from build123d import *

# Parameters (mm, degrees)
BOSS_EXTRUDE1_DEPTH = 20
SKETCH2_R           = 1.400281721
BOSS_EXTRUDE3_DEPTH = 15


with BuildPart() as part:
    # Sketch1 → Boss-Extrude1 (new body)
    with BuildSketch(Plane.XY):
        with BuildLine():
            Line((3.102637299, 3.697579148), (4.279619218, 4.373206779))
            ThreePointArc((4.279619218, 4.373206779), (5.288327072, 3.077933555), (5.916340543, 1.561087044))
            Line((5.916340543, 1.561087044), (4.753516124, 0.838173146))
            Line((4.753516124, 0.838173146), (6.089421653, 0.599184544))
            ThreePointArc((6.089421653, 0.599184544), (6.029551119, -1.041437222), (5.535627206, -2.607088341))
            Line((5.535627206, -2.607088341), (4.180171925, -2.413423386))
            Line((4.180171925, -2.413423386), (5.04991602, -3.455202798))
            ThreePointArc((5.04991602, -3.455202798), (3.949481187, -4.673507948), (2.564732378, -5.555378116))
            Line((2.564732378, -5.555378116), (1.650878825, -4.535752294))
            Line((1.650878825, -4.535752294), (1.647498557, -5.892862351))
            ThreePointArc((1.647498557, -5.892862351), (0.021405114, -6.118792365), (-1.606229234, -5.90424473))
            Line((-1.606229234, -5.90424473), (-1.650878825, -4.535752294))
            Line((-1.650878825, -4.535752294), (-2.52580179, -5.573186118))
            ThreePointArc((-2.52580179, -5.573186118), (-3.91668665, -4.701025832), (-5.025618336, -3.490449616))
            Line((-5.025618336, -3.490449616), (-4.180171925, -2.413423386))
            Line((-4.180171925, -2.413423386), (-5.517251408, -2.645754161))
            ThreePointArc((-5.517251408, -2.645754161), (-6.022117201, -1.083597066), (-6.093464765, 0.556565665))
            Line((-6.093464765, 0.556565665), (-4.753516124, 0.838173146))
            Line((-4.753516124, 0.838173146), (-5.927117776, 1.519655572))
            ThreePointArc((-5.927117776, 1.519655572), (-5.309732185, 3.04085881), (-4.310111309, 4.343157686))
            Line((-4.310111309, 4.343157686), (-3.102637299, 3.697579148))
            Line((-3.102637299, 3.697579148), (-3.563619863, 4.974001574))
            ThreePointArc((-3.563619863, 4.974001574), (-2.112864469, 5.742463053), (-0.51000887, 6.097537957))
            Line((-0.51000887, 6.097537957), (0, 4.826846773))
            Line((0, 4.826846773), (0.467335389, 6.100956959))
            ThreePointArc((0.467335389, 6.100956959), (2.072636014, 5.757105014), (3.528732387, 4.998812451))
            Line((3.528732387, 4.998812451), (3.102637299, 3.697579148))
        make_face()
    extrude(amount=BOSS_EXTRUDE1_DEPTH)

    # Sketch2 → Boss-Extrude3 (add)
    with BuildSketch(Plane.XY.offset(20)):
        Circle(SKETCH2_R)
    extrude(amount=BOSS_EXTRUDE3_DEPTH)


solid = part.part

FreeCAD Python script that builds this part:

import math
import FreeCAD as App
import Part
import Sketcher

doc = App.newDocument("Part")
params = doc.addObject("Spreadsheet::Sheet", "Params")
for row, (alias, value) in enumerate([
    ("pad1_length", "20 mm"),
    ("pad2_length", "15 mm"),
], start=1):
    params.set(f"A{row}", alias)
    params.set(f"B{row}", "=" + value)
    params.setAlias(f"B{row}", alias)

body = doc.addObject("PartDesign::Body", "Body")

sketch1 = body.newObject("Sketcher::SketchObject", "Sketch")
sketch1.AttachmentSupport = (doc.getObject("XY_Plane"), [""])
sketch1.MapMode = "FlatFace"
sketch1.addGeometry([
    Part.LineSegment(App.Vector(4.279619, 4.373207, 0), App.Vector(3.102637, 3.697579, 0)),
    Part.LineSegment(App.Vector(3.102637, 3.697579, 0), App.Vector(3.528732, 4.998812, 0)),
    Part.ArcOfCircle(Part.Circle(App.Vector(0, 0, 0), App.Vector(0, 0, 1), 6.11883), math.radians(54.781191), math.radians(85.619678)),
    Part.LineSegment(App.Vector(0.467335, 6.100957, 0), App.Vector(0, 4.826847, 0)),
    Part.LineSegment(App.Vector(0, 4.826847, 0), App.Vector(-0.510009, 6.097538, 0)),
    Part.ArcOfCircle(Part.Circle(App.Vector(0, 0, 0), App.Vector(0, 0, 1), 6.11883), math.radians(94.781192), math.radians(125.619678)),
    Part.LineSegment(App.Vector(-3.56362, 4.974002, 0), App.Vector(-3.102637, 3.697579, 0)),
    Part.LineSegment(App.Vector(-3.102637, 3.697579, 0), App.Vector(-4.310111, 4.343158, 0)),
    Part.ArcOfCircle(Part.Circle(App.Vector(0, 0, 0), App.Vector(0, 0, 1), 6.11883), math.radians(134.781192), math.radians(165.619678)),
    Part.LineSegment(App.Vector(-5.927118, 1.519656, 0), App.Vector(-4.753516, 0.838173, 0)),
    Part.LineSegment(App.Vector(-4.753516, 0.838173, 0), App.Vector(-6.093465, 0.556566, 0)),
    Part.ArcOfCircle(Part.Circle(App.Vector(0, 0, 0), App.Vector(0, 0, 1), 6.11883), math.radians(174.781191), math.radians(205.619678)),
    Part.LineSegment(App.Vector(-5.517251, -2.645754, 0), App.Vector(-4.180172, -2.413423, 0)),
    Part.LineSegment(App.Vector(-4.180172, -2.413423, 0), App.Vector(-5.025618, -3.49045, 0)),
    Part.ArcOfCircle(Part.Circle(App.Vector(0, 0, 0), App.Vector(0, 0, 1), 6.11883), math.radians(-145.218809), math.radians(-114.380322)),
    Part.LineSegment(App.Vector(-2.525802, -5.573186, 0), App.Vector(-1.650879, -4.535752, 0)),
    Part.LineSegment(App.Vector(-1.650879, -4.535752, 0), App.Vector(-1.606229, -5.904245, 0)),
    Part.ArcOfCircle(Part.Circle(App.Vector(0, 0, 0), App.Vector(0, 0, 1), 6.11883), math.radians(-105.218808), math.radians(-74.380322)),
    Part.LineSegment(App.Vector(1.647499, -5.892862, 0), App.Vector(1.650879, -4.535752, 0)),
    Part.LineSegment(App.Vector(1.650879, -4.535752, 0), App.Vector(2.564732, -5.555378, 0)),
    Part.ArcOfCircle(Part.Circle(App.Vector(0, 0, 0), App.Vector(0, 0, 1), 6.11883), math.radians(-65.218809), math.radians(-34.380322)),
    Part.LineSegment(App.Vector(5.049916, -3.455203, 0), App.Vector(4.180172, -2.413423, 0)),
    Part.LineSegment(App.Vector(4.180172, -2.413423, 0), App.Vector(5.535627, -2.607088, 0)),
    Part.ArcOfCircle(Part.Circle(App.Vector(0, 0, 0), App.Vector(0, 0, 1), 6.11883), math.radians(-25.218809), math.radians(5.619678)),
    Part.LineSegment(App.Vector(6.089422, 0.599185, 0), App.Vector(4.753516, 0.838173, 0)),
    Part.LineSegment(App.Vector(4.753516, 0.838173, 0), App.Vector(5.916341, 1.561087, 0)),
    Part.ArcOfCircle(Part.Circle(App.Vector(0, 0, 0), App.Vector(0, 0, 1), 6.11883), math.radians(14.781191), math.radians(45.619678)),
], False)
sketch1.addConstraint([
    Sketcher.Constraint("Coincident", 0, 2, 1, 1),
    Sketcher.Constraint("Coincident", 1, 2, 2, 1),
    Sketcher.Constraint("Coincident", 2, 2, 3, 1),
    Sketcher.Constraint("Coincident", 3, 2, 4, 1),
    Sketcher.Constraint("Coincident", 4, 2, 5, 1),
    Sketcher.Constraint("Coincident", 5, 2, 6, 1),
    Sketcher.Constraint("Coincident", 6, 2, 7, 1),
    Sketcher.Constraint("Coincident", 7, 2, 8, 1),
    Sketcher.Constraint("Coincident", 8, 2, 9, 1),
    Sketcher.Constraint("Coincident", 9, 2, 10, 1),
    Sketcher.Constraint("Coincident", 10, 2, 11, 1),
    Sketcher.Constraint("Coincident", 11, 2, 12, 1),
    Sketcher.Constraint("Coincident", 12, 2, 13, 1),
    Sketcher.Constraint("Coincident", 13, 2, 14, 1),
    Sketcher.Constraint("Coincident", 14, 2, 15, 1),
    Sketcher.Constraint("Coincident", 15, 2, 16, 1),
    Sketcher.Constraint("Coincident", 16, 2, 17, 1),
    Sketcher.Constraint("Coincident", 17, 2, 18, 1),
    Sketcher.Constraint("Coincident", 18, 2, 19, 1),
    Sketcher.Constraint("Coincident", 19, 2, 20, 1),
    Sketcher.Constraint("Coincident", 20, 2, 21, 1),
    Sketcher.Constraint("Coincident", 21, 2, 22, 1),
    Sketcher.Constraint("Coincident", 22, 2, 23, 1),
    Sketcher.Constraint("Coincident", 23, 2, 24, 1),
    Sketcher.Constraint("Coincident", 24, 2, 25, 1),
    Sketcher.Constraint("Coincident", 25, 2, 26, 1),
    Sketcher.Constraint("Coincident", 26, 2, 0, 1),
    Sketcher.Constraint("Coincident", 2, 3, -1, 1),
    Sketcher.Constraint("Coincident", 5, 3, -1, 1),
    Sketcher.Constraint("Coincident", 8, 3, -1, 1),
    Sketcher.Constraint("Coincident", 11, 3, -1, 1),
    Sketcher.Constraint("Coincident", 14, 3, -1, 1),
    Sketcher.Constraint("Coincident", 17, 3, -1, 1),
    Sketcher.Constraint("Coincident", 20, 3, -1, 1),
    Sketcher.Constraint("Coincident", 23, 3, -1, 1),
    Sketcher.Constraint("Coincident", 26, 3, -1, 1),
    Sketcher.Constraint("PointOnObject", 3, 2, -2),
    Sketcher.Constraint("Radius", 2, 6.11883),
    Sketcher.Constraint("Radius", 5, 6.11883),
    Sketcher.Constraint("Radius", 8, 6.11883),
    Sketcher.Constraint("Radius", 11, 6.11883),
    Sketcher.Constraint("Radius", 14, 6.11883),
    Sketcher.Constraint("Radius", 17, 6.11883),
    Sketcher.Constraint("Radius", 20, 6.11883),
    Sketcher.Constraint("Radius", 23, 6.11883),
    Sketcher.Constraint("Radius", 26, 6.11883),
    Sketcher.Constraint("DistanceY", 15, 2, 11, 2, 1.889998),
    Sketcher.Constraint("DistanceY", -1, 1, 5, 2, 4.974002),
    Sketcher.Constraint("DistanceX", 14, 2, -1, 1, 2.525802),
    Sketcher.Constraint("DistanceX", -1, 1, 17, 2, 1.647499),
    Sketcher.Constraint("DistanceX", 2, 2, 0, 2, 2.635302),
    Sketcher.Constraint("DistanceY", 7, 2, 2, 2, 1.757799),
    Sketcher.Constraint("DistanceX", 8, 2, 9, 2, 1.173602),
    Sketcher.Constraint("DistanceX", 8, 2, 13, 2, 0.901499),
    Sketcher.Constraint("DistanceX", 24, 2, 20, 2, 0.2964),
    Sketcher.Constraint("Distance", 1, 1.369221),
    Sketcher.Constraint("Distance", 4, 1.369221),
    Sketcher.Constraint("Distance", 7, 1.369221),
    Sketcher.Constraint("Distance", 10, 1.369221),
    Sketcher.Constraint("Distance", 13, 1.369221),
    Sketcher.Constraint("Distance", 16, 1.369221),
    Sketcher.Constraint("Distance", 19, 1.369221),
    Sketcher.Constraint("Distance", 22, 1.369221),
    Sketcher.Constraint("Distance", 25, 1.369221),
    Sketcher.Constraint("DistanceY", -1, 1, 0, 2, 3.697579),
    Sketcher.Constraint("DistanceX", 4, 2, -1, 1, 0.510009),
    Sketcher.Constraint("DistanceY", -1, 1, 6, 2, 3.697579),
    Sketcher.Constraint("DistanceX", 7, 2, -1, 1, 4.310111),
    Sketcher.Constraint("DistanceX", 11, 2, -1, 1, 5.517251),
    Sketcher.Constraint("DistanceX", 12, 2, -1, 1, 4.180172),
    Sketcher.Constraint("DistanceX", 13, 2, -1, 1, 5.025618),
    Sketcher.Constraint("DistanceX", 15, 2, -1, 1, 1.650879),
    Sketcher.Constraint("DistanceX", -1, 1, 18, 2, 1.650879),
    Sketcher.Constraint("DistanceY", 19, 2, -1, 1, 5.555378),
    Sketcher.Constraint("DistanceX", -1, 1, 21, 2, 4.180172),
    Sketcher.Constraint("DistanceY", 22, 2, -1, 1, 2.607088),
    Sketcher.Constraint("DistanceX", -1, 1, 23, 2, 6.089422),
    Sketcher.Constraint("DistanceX", -1, 1, 25, 2, 5.916341),
    Sketcher.Constraint("DistanceX", -1, 1, 26, 2, 4.279619),
    Sketcher.Constraint("DistanceY", 9, 2, 5, 2, 4.135828),
    Sketcher.Constraint("DistanceY", 18, 2, 20, 2, 1.080549),
])
pad1 = body.newObject("PartDesign::Pad", "Pad")
pad1.Profile = sketch1
pad1.setExpression("Length", "Params.pad1_length")

sketch2 = body.newObject("Sketcher::SketchObject", "Sketch001")
sketch2.AttachmentSupport = (doc.getObject("XY_Plane"), [""])
sketch2.MapMode = "FlatFace"
sketch2.AttachmentOffset = App.Placement(App.Vector(0, 0, 20), App.Rotation())
sketch2.addGeometry(Part.Circle(App.Vector(0, 0, 0), App.Vector(0, 0, 1), 1.400282), False)
sketch2.addConstraint([
    Sketcher.Constraint("Coincident", 0, 3, -1, 1),
    Sketcher.Constraint("Diameter", 0, 2.800563),
])
pad2 = body.newObject("PartDesign::Pad", "Pad001")
pad2.Profile = sketch2
pad2.setExpression("Length", "Params.pad2_length")

doc.recompute()
